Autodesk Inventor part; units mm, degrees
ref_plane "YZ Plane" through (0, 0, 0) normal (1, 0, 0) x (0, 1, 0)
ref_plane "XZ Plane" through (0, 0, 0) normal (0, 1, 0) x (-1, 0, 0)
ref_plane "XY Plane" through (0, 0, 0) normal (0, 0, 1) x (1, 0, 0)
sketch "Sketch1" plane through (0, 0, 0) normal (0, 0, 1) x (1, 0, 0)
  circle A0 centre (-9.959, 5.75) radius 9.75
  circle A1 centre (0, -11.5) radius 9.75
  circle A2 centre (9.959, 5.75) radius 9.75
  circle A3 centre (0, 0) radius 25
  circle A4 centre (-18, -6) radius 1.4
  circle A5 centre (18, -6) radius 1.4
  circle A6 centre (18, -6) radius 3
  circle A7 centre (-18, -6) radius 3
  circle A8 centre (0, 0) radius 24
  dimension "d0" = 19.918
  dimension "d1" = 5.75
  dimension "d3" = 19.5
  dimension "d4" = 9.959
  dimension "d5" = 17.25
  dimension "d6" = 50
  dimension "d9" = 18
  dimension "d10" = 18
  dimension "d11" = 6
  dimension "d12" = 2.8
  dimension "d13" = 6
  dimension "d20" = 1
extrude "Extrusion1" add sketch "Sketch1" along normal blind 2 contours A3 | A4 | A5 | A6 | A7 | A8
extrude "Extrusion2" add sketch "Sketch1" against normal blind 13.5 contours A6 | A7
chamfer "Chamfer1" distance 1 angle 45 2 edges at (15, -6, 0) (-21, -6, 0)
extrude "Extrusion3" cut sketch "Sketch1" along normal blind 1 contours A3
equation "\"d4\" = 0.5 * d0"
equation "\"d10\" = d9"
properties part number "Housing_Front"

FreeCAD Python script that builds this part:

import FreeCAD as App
import Part
import Sketcher
from FreeCAD import Vector
Q = App.Units.Quantity


def edges_at(feature, points):
    """Names of the edges that pass closest to the given points."""
    edges = feature.Shape.Edges
    near = lambda p: min(range(len(edges)), key=lambda i: edges[i].distToShape(Part.Vertex(*p))[0])
    return sorted({f"Edge{near(p) + 1}" for p in points})

doc = App.newDocument("Part")
body = doc.addObject("PartDesign::Body", "Body")

sketch1 = body.newObject("Sketcher::SketchObject", "Sketch")
sketch1.AttachmentSupport = (doc.getObject("XY_Plane"), [""])
sketch1.MapMode = "FlatFace"
sketch1.addGeometry(Part.Circle(Vector(0, 0, 0), Vector(0, 0, 1), 25), False)
sketch1.addGeometry(Part.Circle(Vector(10, 6, 0), Vector(0, 0, 1), 10), False)
sketch1.addGeometry(Part.Circle(Vector(0, -12, 0), Vector(0, 0, 1), 10), False)
sketch1.addGeometry(Part.Circle(Vector(-10, 6, 0), Vector(0, 0, 1), 10), False)
sketch1.addConstraint(Sketcher.Constraint("Coincident", 0, 3, -1, 1))
sketch1.addConstraint(Sketcher.Constraint("Equal", 1, 2))
sketch1.addConstraint(Sketcher.Constraint("Equal", 2, 3))
sketch1.addConstraint(Sketcher.Constraint("Symmetric", 1, 3, 3, 3, -2))
sketch1.addConstraint(Sketcher.Constraint("PointOnObject", 2, 3, -2))
sketch1.addConstraint(Sketcher.Constraint("Diameter", 0, Q("50 mm")))
sketch1.addConstraint(Sketcher.Constraint("Diameter", 1, Q("19.5 mm")))
sketch1.addConstraint(Sketcher.Constraint("DistanceY", -1, 1, 1, 3, Q("5.75 mm")))
sketch1.addConstraint(Sketcher.Constraint("DistanceY", 2, 3, 1, 3, Q("17.25 mm")))
sketch1.addConstraint(Sketcher.Constraint("DistanceX", -1, 1, 1, 3, Q("9.959 mm")))
pad1 = body.newObject("PartDesign::Pad", "Pad")
pad1.Profile = sketch1
pad1.Length = 2

sketch2 = body.newObject("Sketcher::SketchObject", "Sketch001")
sketch2.AttachmentSupport = (doc.getObject("XY_Plane"), [""])
sketch2.MapMode = "FlatFace"
sketch2.addGeometry(Part.Circle(Vector(18, -6, 0), Vector(0, 0, 1), 3), False)
sketch2.addGeometry(Part.Circle(Vector(18, -6, 0), Vector(0, 0, 1), 1.4), False)
sketch2.addGeometry(Part.Circle(Vector(-18, -6, 0), Vector(0, 0, 1), 3), False)
sketch2.addGeometry(Part.Circle(Vector(-18, -6, 0), Vector(0, 0, 1), 1.4), False)
sketch2.addConstraint(Sketcher.Constraint("Coincident", 1, 3, 0, 3))
sketch2.addConstraint(Sketcher.Constraint("Coincident", 3, 3, 2, 3))
sketch2.addConstraint(Sketcher.Constraint("Equal", 0, 2))
sketch2.addConstraint(Sketcher.Constraint("Equal", 1, 3))
sketch2.addConstraint(Sketcher.Constraint("Symmetric", 0, 3, 2, 3, -2))
sketch2.addConstraint(Sketcher.Constraint("Diameter", 0, Q("6 mm")))
sketch2.addConstraint(Sketcher.Constraint("Diameter", 1, Q("2.8 mm")))
sketch2.addConstraint(Sketcher.Constraint("DistanceX", -1, 1, 0, 3, Q("18 mm")))
sketch2.addConstraint(Sketcher.Constraint("DistanceY", 0, 3, -1, 1, Q("6 mm")))
pad2 = body.newObject("PartDesign::Pad", "Pad001")
pad2.Profile = sketch2
pad2.Length = 13.5
pad2.Reversed = True
doc.recompute()

chamfer = body.newObject("PartDesign::Chamfer", "Chamfer")
chamfer.Base = (pad2, edges_at(pad2, [(15, -6, 0), (-21, -6, 0)]))
chamfer.Size = 1

sketch3 = body.newObject("Sketcher::SketchObject", "Sketch002")
sketch3.AttachmentSupport = (doc.getObject("XY_Plane"), [""])
sketch3.MapMode = "FlatFace"
sketch3.addGeometry(Part.Circle(Vector(0, 0, 0), Vector(0, 0, 1), 25), False)
sketch3.addGeometry(Part.Circle(Vector(0, 0, 0), Vector(0, 0, 1), 24), False)
sketch3.addConstraint(Sketcher.Constraint("Coincident", 0, 3, -1, 1))
sketch3.addConstraint(Sketcher.Constraint("Coincident", 1, 3, -1, 1))
sketch3.addConstraint(Sketcher.Constraint("Diameter", 0, Q("50 mm")))
sketch3.addConstraint(Sketcher.Constraint("Diameter", 1, Q("48 mm")))
pocket1 = body.newObject("PartDesign::Pocket", "Pocket")
pocket1.Profile = sketch3
pocket1.Length = 1
pocket1.Reversed = True

doc.recompute()
